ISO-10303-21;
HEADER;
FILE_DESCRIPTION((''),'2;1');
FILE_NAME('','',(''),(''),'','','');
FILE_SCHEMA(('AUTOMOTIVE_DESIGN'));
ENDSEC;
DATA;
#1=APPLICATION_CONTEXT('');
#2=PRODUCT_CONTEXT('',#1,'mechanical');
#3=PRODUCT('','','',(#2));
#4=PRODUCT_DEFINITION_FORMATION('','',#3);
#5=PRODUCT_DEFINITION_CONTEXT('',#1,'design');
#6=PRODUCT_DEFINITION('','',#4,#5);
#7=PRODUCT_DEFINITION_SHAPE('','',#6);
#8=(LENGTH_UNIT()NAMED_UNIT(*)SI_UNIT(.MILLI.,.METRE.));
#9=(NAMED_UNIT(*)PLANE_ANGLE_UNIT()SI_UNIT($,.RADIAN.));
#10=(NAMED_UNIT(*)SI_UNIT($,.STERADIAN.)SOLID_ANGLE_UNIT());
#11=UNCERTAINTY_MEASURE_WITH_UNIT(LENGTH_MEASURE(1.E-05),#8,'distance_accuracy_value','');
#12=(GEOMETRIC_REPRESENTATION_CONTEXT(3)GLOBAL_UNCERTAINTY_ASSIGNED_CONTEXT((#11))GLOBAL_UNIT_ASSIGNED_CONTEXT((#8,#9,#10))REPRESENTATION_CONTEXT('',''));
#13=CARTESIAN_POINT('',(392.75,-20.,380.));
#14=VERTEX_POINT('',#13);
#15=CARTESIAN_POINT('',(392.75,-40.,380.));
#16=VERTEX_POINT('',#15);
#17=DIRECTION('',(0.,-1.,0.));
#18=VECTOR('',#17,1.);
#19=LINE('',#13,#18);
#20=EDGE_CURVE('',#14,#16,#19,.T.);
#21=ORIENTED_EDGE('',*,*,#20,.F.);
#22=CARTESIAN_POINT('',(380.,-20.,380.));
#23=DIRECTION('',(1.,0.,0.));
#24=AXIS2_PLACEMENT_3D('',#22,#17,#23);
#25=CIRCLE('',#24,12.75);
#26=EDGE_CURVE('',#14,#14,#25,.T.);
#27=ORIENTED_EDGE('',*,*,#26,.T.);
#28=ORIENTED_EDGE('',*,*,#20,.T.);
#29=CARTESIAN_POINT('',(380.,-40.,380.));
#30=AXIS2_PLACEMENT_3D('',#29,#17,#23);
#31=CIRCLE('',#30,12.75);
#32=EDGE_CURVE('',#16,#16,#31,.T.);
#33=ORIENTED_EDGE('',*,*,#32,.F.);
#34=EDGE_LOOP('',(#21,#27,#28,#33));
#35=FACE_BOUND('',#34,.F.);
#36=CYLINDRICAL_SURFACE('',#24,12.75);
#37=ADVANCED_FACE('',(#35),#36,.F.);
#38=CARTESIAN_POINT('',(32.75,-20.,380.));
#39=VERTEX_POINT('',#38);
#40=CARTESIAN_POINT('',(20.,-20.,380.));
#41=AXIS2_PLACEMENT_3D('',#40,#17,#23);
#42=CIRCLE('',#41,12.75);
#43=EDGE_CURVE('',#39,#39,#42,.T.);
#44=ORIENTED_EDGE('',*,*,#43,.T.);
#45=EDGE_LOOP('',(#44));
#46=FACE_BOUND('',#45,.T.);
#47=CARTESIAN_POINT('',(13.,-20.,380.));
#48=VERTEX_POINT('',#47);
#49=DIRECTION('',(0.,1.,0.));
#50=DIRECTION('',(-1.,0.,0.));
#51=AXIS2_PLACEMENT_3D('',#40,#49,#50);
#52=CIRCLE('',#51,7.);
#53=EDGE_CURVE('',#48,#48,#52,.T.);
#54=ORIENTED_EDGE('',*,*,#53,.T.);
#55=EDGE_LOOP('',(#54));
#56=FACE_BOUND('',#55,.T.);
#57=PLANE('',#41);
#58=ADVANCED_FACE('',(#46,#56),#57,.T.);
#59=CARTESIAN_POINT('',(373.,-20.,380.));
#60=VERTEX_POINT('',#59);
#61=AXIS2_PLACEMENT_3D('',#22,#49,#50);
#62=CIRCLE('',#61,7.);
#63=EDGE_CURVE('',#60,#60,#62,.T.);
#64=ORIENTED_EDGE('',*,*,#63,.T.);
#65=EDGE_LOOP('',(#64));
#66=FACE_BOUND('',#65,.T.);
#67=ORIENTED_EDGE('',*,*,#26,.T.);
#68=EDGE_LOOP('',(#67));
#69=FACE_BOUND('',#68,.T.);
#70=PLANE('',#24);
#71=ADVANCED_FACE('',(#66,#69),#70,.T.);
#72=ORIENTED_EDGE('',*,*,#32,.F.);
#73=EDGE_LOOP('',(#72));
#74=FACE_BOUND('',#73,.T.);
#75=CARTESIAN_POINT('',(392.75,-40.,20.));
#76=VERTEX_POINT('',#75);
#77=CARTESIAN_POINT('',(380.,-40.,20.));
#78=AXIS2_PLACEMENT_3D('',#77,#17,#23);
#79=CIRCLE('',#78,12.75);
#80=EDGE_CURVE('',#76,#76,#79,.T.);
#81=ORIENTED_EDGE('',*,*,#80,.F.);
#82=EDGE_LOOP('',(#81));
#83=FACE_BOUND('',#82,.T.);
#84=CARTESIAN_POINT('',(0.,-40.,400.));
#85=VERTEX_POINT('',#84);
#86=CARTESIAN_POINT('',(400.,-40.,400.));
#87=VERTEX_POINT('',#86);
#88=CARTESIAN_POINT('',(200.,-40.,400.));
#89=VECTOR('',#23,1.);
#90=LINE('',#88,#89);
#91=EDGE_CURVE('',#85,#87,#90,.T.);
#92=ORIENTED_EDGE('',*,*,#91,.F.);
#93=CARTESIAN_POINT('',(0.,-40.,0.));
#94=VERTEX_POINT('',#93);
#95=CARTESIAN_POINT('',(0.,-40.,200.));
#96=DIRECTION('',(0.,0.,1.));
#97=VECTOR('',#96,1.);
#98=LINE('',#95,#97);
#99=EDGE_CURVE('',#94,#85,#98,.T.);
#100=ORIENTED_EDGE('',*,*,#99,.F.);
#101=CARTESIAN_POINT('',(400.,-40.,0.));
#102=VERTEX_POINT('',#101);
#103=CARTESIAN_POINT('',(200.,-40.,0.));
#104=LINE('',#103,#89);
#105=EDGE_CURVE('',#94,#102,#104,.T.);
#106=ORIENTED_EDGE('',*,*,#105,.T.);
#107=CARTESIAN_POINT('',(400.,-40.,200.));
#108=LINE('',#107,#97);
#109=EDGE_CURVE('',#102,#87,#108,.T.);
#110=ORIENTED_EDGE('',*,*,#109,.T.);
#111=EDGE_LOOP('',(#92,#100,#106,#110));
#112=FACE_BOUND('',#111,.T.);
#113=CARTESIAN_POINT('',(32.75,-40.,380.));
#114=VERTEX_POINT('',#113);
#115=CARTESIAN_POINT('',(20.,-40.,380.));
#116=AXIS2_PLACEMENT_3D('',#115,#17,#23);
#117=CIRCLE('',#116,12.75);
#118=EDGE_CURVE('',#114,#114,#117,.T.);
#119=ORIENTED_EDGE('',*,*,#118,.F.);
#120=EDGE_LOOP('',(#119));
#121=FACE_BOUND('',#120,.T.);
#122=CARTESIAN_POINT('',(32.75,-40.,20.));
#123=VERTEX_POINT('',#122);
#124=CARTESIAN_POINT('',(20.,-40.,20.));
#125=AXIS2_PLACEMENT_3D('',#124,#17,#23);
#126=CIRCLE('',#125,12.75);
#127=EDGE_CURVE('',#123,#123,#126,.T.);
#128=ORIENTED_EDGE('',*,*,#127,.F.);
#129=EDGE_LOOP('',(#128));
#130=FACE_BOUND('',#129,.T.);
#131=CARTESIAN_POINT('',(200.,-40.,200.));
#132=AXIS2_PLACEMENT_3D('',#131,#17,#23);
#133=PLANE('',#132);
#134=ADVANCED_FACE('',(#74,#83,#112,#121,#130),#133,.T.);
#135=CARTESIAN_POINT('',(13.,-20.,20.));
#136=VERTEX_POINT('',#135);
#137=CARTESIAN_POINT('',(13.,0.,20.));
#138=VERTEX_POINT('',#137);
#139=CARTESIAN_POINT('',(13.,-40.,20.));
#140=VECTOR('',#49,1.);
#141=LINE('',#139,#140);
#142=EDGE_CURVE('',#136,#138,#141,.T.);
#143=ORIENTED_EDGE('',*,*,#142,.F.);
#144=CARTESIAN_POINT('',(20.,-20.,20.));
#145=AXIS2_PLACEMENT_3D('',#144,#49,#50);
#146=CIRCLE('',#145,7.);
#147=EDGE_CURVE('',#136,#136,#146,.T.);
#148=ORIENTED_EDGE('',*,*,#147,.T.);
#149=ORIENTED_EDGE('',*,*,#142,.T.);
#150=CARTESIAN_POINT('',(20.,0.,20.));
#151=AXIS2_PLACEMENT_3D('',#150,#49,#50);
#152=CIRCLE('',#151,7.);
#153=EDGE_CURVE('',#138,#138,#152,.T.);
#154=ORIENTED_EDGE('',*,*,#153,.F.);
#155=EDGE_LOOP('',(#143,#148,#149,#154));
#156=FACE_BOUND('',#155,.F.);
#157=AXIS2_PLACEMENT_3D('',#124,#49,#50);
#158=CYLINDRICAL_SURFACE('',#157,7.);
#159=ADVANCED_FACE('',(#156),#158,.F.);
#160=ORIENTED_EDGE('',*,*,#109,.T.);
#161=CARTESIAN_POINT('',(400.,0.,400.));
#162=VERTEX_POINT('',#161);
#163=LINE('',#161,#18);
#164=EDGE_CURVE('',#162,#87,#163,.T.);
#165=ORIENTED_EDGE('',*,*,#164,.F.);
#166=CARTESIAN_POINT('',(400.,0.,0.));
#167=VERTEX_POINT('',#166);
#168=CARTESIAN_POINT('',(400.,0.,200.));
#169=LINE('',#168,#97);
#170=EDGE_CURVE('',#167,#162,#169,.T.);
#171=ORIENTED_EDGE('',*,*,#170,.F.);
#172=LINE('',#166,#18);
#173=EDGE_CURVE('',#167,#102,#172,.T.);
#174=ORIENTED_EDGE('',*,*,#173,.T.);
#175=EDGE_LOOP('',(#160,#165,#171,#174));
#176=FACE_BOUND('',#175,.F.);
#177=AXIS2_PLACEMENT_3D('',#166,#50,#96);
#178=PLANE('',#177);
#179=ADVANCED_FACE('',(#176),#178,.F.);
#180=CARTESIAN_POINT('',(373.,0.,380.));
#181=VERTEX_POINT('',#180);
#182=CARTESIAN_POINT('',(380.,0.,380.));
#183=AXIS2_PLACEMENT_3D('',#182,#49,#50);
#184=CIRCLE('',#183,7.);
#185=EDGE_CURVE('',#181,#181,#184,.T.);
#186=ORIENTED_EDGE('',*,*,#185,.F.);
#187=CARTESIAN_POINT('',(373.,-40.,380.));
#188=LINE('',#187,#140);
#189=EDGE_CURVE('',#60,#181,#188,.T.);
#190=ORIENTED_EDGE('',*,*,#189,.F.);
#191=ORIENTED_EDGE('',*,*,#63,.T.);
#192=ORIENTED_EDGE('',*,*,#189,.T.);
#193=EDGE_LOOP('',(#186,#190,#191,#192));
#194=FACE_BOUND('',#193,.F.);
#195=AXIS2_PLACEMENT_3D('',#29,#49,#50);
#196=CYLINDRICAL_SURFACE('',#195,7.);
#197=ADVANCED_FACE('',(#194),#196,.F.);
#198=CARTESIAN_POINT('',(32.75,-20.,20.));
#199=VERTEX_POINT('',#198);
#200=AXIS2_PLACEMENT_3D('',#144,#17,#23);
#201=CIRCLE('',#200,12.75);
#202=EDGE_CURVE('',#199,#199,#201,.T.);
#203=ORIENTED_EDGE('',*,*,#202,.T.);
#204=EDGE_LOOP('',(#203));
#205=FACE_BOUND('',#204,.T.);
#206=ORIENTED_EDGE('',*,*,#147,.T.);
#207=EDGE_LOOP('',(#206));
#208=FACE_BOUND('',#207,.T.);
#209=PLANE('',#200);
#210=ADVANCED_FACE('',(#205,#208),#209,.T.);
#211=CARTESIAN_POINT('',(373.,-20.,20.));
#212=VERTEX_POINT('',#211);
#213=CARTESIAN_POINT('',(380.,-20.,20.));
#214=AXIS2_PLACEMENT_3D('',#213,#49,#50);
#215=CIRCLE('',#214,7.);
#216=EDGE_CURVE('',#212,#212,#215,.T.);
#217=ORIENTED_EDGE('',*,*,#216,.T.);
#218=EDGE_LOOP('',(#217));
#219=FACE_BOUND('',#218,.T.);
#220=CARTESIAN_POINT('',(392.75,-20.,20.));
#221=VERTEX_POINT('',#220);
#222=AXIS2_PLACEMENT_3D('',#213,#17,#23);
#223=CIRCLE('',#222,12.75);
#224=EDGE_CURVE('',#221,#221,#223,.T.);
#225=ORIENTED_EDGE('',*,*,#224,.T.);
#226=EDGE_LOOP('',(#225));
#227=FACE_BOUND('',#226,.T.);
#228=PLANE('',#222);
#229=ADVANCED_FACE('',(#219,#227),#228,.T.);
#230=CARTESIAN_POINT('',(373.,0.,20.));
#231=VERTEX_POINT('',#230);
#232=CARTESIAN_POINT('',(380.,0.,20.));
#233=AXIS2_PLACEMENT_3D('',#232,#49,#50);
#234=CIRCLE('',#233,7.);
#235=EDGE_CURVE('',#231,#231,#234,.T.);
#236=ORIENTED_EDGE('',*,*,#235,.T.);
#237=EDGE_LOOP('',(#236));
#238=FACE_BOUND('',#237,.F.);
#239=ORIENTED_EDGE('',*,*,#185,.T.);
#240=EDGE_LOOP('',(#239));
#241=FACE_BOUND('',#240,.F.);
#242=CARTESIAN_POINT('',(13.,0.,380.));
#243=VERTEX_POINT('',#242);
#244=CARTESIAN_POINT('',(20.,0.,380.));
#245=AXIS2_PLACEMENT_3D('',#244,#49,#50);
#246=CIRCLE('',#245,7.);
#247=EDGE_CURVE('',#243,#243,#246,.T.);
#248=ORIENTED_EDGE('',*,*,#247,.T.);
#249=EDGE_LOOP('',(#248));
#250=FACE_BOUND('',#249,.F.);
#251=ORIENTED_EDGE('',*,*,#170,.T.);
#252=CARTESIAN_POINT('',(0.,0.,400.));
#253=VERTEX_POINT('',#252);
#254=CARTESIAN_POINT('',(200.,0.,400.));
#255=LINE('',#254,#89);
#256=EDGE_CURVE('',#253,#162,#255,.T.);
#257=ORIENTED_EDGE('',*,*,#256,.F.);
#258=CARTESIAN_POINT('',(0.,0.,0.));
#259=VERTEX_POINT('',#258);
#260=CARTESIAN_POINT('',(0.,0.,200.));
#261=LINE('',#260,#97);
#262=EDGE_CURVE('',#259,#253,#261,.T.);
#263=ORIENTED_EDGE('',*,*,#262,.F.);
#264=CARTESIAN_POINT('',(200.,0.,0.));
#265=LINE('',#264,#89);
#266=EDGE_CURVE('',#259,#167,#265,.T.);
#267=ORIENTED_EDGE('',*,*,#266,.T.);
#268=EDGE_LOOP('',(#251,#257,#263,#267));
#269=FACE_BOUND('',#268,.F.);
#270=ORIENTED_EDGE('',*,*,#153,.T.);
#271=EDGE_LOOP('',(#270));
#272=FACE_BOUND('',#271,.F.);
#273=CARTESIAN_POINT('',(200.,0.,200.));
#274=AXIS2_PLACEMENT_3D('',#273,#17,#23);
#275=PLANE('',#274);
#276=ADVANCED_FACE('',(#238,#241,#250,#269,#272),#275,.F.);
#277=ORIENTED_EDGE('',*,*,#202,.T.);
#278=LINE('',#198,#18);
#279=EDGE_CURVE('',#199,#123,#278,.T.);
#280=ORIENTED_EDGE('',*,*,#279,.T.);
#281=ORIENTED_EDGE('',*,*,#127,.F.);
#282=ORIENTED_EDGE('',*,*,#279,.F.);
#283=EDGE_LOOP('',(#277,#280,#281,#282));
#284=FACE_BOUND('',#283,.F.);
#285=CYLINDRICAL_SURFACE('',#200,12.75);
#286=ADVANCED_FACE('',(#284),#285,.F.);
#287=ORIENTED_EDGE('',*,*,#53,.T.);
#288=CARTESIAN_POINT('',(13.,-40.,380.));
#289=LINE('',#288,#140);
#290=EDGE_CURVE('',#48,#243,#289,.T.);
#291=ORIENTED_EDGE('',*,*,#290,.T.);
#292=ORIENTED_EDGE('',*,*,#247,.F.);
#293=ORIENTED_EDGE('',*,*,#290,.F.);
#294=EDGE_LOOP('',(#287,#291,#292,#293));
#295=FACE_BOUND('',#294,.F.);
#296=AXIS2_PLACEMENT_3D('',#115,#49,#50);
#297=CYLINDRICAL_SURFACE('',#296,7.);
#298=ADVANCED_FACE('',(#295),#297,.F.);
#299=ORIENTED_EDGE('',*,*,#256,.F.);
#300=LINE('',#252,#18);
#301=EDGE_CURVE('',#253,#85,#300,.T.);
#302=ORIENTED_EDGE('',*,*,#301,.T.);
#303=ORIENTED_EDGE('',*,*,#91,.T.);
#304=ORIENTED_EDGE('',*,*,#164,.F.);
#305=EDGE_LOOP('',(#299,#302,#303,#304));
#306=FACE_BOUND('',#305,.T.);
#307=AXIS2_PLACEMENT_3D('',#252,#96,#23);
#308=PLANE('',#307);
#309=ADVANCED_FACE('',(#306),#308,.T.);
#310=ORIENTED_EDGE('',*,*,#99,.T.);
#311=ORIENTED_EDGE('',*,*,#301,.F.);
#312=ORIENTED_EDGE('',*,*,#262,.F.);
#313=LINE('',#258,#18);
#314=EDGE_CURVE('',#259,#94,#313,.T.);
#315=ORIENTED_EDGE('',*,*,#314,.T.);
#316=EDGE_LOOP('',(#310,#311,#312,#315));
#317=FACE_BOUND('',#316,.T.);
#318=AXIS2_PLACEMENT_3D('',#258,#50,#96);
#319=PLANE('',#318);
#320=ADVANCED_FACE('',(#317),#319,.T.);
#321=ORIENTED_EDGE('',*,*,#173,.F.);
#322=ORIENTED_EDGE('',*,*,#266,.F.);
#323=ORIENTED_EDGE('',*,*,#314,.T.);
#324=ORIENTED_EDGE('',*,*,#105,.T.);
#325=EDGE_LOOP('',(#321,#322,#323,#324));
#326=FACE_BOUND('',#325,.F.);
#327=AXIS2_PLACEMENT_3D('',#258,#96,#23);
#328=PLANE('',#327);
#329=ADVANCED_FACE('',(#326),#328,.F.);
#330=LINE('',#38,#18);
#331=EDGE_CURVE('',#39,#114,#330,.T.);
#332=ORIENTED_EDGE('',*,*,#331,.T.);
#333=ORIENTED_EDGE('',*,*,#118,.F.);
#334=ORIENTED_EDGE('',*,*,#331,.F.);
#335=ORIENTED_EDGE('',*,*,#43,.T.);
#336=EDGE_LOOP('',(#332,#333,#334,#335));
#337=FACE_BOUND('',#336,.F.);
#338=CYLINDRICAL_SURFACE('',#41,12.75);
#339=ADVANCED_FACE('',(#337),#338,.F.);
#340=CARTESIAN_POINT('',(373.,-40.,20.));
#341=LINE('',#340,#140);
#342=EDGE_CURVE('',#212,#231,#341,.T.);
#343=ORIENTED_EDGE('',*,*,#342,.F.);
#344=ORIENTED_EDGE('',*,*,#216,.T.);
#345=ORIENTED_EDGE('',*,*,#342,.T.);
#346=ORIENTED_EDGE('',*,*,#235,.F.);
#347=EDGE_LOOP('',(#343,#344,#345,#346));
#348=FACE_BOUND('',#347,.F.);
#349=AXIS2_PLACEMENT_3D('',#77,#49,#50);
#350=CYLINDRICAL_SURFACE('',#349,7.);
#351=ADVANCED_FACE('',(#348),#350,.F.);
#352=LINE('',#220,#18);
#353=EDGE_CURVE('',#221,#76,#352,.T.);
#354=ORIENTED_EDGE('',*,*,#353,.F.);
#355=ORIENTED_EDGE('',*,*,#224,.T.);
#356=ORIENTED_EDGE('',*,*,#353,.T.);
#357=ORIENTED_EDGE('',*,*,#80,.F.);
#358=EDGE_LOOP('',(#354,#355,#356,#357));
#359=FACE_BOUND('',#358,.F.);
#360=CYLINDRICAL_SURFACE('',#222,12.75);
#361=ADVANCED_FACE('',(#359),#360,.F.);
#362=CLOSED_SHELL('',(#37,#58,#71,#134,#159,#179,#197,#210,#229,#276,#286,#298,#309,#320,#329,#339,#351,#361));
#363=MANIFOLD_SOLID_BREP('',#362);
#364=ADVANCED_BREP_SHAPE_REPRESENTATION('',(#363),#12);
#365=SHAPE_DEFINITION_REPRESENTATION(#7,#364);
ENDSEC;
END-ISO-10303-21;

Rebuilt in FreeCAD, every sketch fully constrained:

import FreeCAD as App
import Part
import Sketcher

V = App.Vector
Q = App.Units.Quantity

doc = App.newDocument("Part")
params = doc.addObject("Spreadsheet::Sheet", "Params")
for row, (alias, value) in enumerate([
    ("sketch1_width", "400 mm"),
    ("pad1_length", "40 mm"),
    ("sketch2_diameter", "14 mm"),
    ("hole_diameter", "14 mm"),
    ("hole_cbore_diameter", "25.5 mm"),
    ("hole_cbore_depth", "20 mm"),
], start=1):
    params.set(f"A{row}", alias)
    params.set(f"B{row}", "=" + value)
    params.setAlias(f"B{row}", alias)

body = doc.addObject("PartDesign::Body", "Body")

# Sketch on XZ plane
sketch1 = body.newObject("Sketcher::SketchObject", "Sketch")
sketch1.AttachmentSupport = (doc.getObject("XZ_Plane"), [""])
sketch1.MapMode = "FlatFace"
sketch1.addGeometry(Part.LineSegment(V(0, 400, 0), V(0, 0, 0)), False)
sketch1.addGeometry(Part.LineSegment(V(0, 0, 0), V(400, 0, 0)), False)
sketch1.addGeometry(Part.LineSegment(V(400, 0, 0), V(400, 400, 0)), False)
sketch1.addGeometry(Part.LineSegment(V(400, 400, 0), V(0, 400, 0)), False)
sketch1.addConstraint(Sketcher.Constraint("Coincident", 0, 2, 1, 1))
sketch1.addConstraint(Sketcher.Constraint("Coincident", 1, 2, 2, 1))
sketch1.addConstraint(Sketcher.Constraint("Coincident", 2, 2, 3, 1))
sketch1.addConstraint(Sketcher.Constraint("Coincident", 3, 2, 0, 1))
sketch1.addConstraint(Sketcher.Constraint("Vertical", 0))
sketch1.addConstraint(Sketcher.Constraint("Horizontal", 1))
sketch1.addConstraint(Sketcher.Constraint("Vertical", 2))
sketch1.addConstraint(Sketcher.Constraint("Horizontal", 3))
sketch1.addConstraint(Sketcher.Constraint("Coincident", 0, 2, -1, 1))
sketch1.addConstraint(Sketcher.Constraint("Equal", 3, 0))
sketch1.addConstraint(Sketcher.Constraint("DistanceX", 1, 1, 1, 2, Q("400 mm")))
sketch1.setExpression("Constraints[10]", "Params.sketch1_width")
pad1 = body.newObject("PartDesign::Pad", "Pad")
pad1.Profile = sketch1
pad1.setExpression("Length", "Params.pad1_length")

# Sketch on XZ plane
sketch2 = body.newObject("Sketcher::SketchObject", "Sketch001")
sketch2.AttachmentSupport = (doc.getObject("XZ_Plane"), [""])
sketch2.MapMode = "FlatFace"
sketch2.AttachmentOffset = App.Placement(V(0, 0, 40), App.Rotation())
sketch2.addGeometry(Part.Circle(V(20, 380, 0), V(0, 0, 1), 7), False)
sketch2.addGeometry(Part.Circle(V(380, 380, 0), V(0, 0, 1), 7), False)
sketch2.addGeometry(Part.Circle(V(380, 20, 0), V(0, 0, 1), 7), False)
sketch2.addGeometry(Part.Circle(V(20, 20, 0), V(0, 0, 1), 7), False)
sketch2.addConstraint(Sketcher.Constraint("Equal", 0, 1))
sketch2.addConstraint(Sketcher.Constraint("Equal", 1, 2))
sketch2.addConstraint(Sketcher.Constraint("Equal", 2, 3))
sketch2.addConstraint(Sketcher.Constraint("Horizontal", 0, 3, 1, 3))
sketch2.addConstraint(Sketcher.Constraint("Horizontal", 2, 3, 3, 3))
sketch2.addConstraint(Sketcher.Constraint("Vertical", 1, 3, 2, 3))
sketch2.addConstraint(Sketcher.Constraint("Vertical", 0, 3, 3, 3))
sketch2.addConstraint(Sketcher.Constraint("Diameter", 0, Q("14 mm")))
sketch2.addConstraint(Sketcher.Constraint("DistanceX", -1, 1, 0, 3, Q("20 mm")))
sketch2.addConstraint(Sketcher.Constraint("DistanceY", -1, 1, 0, 3, Q("380 mm")))
sketch2.addConstraint(Sketcher.Constraint("DistanceX", -1, 1, 1, 3, Q("380 mm")))
sketch2.addConstraint(Sketcher.Constraint("DistanceY", -1, 1, 2, 3, Q("20 mm")))
sketch2.setExpression("Constraints[7]", "Params.sketch2_diameter")
doc.recompute()
hole = body.newObject("PartDesign::Hole", "Hole")
hole.Profile = sketch2
hole.ThreadType = "None"
hole.setExpression("Diameter", "Params.hole_diameter")
hole.DepthType = "ThroughAll"
hole.HoleCutType = "Counterbore"
hole.setExpression("HoleCutDiameter", "Params.hole_cbore_diameter")
hole.setExpression("HoleCutDepth", "Params.hole_cbore_depth")

doc.recompute()
